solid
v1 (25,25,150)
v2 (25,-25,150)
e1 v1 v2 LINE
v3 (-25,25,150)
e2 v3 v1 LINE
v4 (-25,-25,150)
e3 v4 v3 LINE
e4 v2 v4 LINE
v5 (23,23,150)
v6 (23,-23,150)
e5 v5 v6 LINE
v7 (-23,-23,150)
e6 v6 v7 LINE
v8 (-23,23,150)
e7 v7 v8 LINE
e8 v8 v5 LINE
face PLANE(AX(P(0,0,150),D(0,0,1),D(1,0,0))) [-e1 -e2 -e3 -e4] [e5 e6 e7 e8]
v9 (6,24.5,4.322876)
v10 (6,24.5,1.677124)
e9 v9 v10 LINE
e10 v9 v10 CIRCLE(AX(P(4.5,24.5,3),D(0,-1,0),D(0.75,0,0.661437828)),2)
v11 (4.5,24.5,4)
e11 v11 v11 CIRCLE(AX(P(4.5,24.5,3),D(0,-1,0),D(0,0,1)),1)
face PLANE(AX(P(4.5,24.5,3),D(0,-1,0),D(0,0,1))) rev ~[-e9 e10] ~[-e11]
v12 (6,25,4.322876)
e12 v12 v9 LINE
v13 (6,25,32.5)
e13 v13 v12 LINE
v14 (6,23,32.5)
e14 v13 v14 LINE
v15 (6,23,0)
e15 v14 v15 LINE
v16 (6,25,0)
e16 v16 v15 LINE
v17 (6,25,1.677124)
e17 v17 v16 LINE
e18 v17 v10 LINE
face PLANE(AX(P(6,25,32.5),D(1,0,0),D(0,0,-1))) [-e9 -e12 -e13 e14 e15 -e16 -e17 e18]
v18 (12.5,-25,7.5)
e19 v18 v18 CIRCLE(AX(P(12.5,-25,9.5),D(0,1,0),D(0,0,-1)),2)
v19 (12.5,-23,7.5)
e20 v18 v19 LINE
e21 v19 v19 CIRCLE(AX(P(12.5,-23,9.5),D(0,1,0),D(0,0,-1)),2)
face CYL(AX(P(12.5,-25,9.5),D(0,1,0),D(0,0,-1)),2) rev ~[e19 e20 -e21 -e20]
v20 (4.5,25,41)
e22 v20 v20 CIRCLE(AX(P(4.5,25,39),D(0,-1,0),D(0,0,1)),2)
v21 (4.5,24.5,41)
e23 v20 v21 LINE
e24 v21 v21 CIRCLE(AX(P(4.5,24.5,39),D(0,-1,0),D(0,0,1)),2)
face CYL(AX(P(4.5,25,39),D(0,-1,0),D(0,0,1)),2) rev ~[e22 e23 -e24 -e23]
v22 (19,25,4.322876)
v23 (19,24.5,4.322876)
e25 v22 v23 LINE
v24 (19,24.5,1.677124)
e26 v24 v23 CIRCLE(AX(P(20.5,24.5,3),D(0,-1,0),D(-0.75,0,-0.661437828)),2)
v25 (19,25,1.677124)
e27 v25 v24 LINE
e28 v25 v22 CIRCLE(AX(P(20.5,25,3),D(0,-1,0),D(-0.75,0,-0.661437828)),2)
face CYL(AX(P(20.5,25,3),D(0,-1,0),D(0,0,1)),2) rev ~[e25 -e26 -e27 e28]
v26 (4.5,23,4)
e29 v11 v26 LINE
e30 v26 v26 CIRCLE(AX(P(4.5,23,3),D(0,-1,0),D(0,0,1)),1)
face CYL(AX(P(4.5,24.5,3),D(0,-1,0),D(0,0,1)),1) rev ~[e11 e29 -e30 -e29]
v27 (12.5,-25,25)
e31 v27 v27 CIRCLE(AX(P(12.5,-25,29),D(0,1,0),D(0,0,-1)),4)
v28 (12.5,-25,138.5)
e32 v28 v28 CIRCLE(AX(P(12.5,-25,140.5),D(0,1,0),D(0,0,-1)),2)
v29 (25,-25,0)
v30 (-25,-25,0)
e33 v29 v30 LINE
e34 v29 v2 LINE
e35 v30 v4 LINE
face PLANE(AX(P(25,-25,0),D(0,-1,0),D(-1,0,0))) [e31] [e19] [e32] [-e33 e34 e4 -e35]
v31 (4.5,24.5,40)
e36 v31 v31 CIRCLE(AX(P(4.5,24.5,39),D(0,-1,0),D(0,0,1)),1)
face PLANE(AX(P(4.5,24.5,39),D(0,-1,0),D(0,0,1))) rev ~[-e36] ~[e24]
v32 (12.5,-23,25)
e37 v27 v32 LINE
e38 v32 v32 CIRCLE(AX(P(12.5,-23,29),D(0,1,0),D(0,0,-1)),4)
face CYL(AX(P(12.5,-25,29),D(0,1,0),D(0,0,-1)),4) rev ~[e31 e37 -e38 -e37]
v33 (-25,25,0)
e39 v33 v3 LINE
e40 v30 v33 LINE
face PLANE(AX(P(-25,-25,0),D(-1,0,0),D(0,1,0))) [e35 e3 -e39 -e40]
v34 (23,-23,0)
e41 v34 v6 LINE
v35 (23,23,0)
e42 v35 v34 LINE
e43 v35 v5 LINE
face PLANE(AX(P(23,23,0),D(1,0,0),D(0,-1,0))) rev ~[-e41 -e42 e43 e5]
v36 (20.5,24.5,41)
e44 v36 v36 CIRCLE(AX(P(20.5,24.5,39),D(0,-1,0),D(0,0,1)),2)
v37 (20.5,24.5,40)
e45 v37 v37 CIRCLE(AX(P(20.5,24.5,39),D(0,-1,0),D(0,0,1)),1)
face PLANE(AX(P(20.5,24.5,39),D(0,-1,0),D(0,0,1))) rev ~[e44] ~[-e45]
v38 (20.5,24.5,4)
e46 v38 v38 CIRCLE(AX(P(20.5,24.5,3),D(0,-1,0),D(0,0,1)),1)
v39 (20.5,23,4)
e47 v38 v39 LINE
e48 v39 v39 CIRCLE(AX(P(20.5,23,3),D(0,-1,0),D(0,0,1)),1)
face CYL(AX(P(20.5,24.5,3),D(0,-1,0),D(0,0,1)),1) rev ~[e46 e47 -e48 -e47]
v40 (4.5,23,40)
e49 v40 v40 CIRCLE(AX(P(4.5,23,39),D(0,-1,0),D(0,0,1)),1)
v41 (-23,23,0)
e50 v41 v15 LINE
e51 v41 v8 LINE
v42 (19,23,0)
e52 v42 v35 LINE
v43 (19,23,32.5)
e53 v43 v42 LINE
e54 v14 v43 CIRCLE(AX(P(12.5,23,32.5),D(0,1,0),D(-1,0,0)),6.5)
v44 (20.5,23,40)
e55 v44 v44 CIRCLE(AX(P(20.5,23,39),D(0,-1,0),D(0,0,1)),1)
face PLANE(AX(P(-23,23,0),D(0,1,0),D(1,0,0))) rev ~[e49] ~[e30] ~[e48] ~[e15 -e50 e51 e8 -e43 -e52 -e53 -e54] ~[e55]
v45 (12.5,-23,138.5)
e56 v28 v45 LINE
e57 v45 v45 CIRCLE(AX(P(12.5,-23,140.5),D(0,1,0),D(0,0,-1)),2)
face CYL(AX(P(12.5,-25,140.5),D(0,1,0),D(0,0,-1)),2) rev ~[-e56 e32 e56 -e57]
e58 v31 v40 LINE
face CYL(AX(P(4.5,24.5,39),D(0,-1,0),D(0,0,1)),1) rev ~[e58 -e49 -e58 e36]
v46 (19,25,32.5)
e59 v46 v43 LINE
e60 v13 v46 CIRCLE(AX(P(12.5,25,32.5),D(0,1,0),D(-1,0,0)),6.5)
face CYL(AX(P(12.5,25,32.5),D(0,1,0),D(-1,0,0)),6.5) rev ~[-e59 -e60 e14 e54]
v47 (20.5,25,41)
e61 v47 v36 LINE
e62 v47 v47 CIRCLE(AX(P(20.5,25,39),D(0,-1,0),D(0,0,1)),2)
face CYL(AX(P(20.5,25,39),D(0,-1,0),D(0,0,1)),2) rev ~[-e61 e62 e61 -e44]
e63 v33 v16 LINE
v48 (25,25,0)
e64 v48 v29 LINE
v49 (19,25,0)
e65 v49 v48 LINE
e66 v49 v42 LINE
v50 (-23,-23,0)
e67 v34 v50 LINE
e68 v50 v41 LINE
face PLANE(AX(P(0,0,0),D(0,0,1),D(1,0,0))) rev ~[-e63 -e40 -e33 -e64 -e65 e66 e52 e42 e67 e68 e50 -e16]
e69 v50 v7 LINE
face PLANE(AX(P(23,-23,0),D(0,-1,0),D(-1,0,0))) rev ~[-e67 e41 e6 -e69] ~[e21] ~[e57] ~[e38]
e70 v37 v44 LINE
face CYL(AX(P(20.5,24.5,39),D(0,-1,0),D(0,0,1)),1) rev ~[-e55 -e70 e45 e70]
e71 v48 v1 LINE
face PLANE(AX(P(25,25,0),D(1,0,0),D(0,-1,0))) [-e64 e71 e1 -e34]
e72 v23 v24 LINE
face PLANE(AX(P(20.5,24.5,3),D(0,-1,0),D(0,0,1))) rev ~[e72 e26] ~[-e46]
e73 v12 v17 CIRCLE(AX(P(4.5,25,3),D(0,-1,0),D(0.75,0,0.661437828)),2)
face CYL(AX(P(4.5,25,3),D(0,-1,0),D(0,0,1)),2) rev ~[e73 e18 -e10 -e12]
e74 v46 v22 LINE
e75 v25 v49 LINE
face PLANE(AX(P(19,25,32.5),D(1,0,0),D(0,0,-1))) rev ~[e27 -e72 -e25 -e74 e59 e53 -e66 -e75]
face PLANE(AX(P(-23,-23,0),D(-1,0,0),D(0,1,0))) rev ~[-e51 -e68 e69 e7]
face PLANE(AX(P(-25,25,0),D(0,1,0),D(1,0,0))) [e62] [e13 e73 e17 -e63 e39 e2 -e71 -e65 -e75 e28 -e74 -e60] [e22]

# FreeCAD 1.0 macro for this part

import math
import FreeCAD as App
import Part
import Sketcher

doc = App.newDocument("Part")
body = doc.addObject("PartDesign::Body", "Body")

sketch1 = body.newObject("Sketcher::SketchObject", "Sketch")
sketch1.AttachmentSupport = (doc.getObject("XY_Plane"), [""])
sketch1.MapMode = "FlatFace"
sketch1.addGeometry(Part.LineSegment(App.Vector(25, 25, 0), App.Vector(-25, 25, 0)), False)
sketch1.addGeometry(Part.LineSegment(App.Vector(-25, 25, 0), App.Vector(-25, -25, 0)), False)
sketch1.addGeometry(Part.LineSegment(App.Vector(-25, -25, 0), App.Vector(25, -25, 0)), False)
sketch1.addGeometry(Part.LineSegment(App.Vector(25, -25, 0), App.Vector(25, 25, 0)), False)
sketch1.addGeometry(Part.LineSegment(App.Vector(-23, -23, 0), App.Vector(-23, 23, 0)), False)
sketch1.addGeometry(Part.LineSegment(App.Vector(-23, 23, 0), App.Vector(23, 23, 0)), False)
sketch1.addGeometry(Part.LineSegment(App.Vector(23, 23, 0), App.Vector(23, -23, 0)), False)
sketch1.addGeometry(Part.LineSegment(App.Vector(23, -23, 0), App.Vector(-23, -23, 0)), False)
sketch1.addConstraint(Sketcher.Constraint("Coincident", 0, 2, 1, 1))
sketch1.addConstraint(Sketcher.Constraint("Coincident", 1, 2, 2, 1))
sketch1.addConstraint(Sketcher.Constraint("Coincident", 2, 2, 3, 1))
sketch1.addConstraint(Sketcher.Constraint("Coincident", 3, 2, 0, 1))
sketch1.addConstraint(Sketcher.Constraint("Coincident", 4, 2, 5, 1))
sketch1.addConstraint(Sketcher.Constraint("Coincident", 5, 2, 6, 1))
sketch1.addConstraint(Sketcher.Constraint("Coincident", 6, 2, 7, 1))
sketch1.addConstraint(Sketcher.Constraint("Coincident", 7, 2, 4, 1))
sketch1.addConstraint(Sketcher.Constraint("Horizontal", 0))
sketch1.addConstraint(Sketcher.Constraint("Vertical", 1))
sketch1.addConstraint(Sketcher.Constraint("Horizontal", 2))
sketch1.addConstraint(Sketcher.Constraint("Vertical", 3))
sketch1.addConstraint(Sketcher.Constraint("Vertical", 4))
sketch1.addConstraint(Sketcher.Constraint("Horizontal", 5))
sketch1.addConstraint(Sketcher.Constraint("Vertical", 6))
sketch1.addConstraint(Sketcher.Constraint("Horizontal", 7))
sketch1.addConstraint(Sketcher.Constraint("Symmetric", 0, 2, 2, 2, -1, 1))
sketch1.addConstraint(Sketcher.Constraint("Symmetric", 4, 2, 6, 2, -1, 1))
sketch1.addConstraint(Sketcher.Constraint("Equal", 2, 1))
sketch1.addConstraint(Sketcher.Constraint("Equal", 7, 4))
sketch1.addConstraint(Sketcher.Constraint("DistanceX", 0, 2, 0, 1, 50.0))
sketch1.addConstraint(Sketcher.Constraint("DistanceX", 5, 1, 5, 2, 46.0))
pad1 = body.newObject("PartDesign::Pad", "Pad")
pad1.Profile = sketch1
pad1.Length = 150

sketch2 = body.newObject("Sketcher::SketchObject", "Sketch001")
sketch2.AttachmentSupport = (doc.getObject("XZ_Plane"), [""])
sketch2.MapMode = "FlatFace"
sketch2.AttachmentOffset = App.Placement(App.Vector(0, 0, -25), App.Rotation())
sketch2.addGeometry(Part.LineSegment(App.Vector(19, 0, 0), App.Vector(6, 0, 0)), False)
sketch2.addGeometry(Part.LineSegment(App.Vector(6, 0, 0), App.Vector(6, 32.5, 0)), False)
sketch2.addGeometry(Part.ArcOfCircle(Part.Circle(App.Vector(12.5, 32.5, 0), App.Vector(0, 0, 1), 6.5), math.radians(0), math.radians(180)), False)
sketch2.addGeometry(Part.LineSegment(App.Vector(19, 32.5, 0), App.Vector(19, 0, 0)), False)
sketch2.addConstraint(Sketcher.Constraint("Coincident", 0, 2, 1, 1))
sketch2.addConstraint(Sketcher.Constraint("Tangent", 1, 2, 2, 2))
sketch2.addConstraint(Sketcher.Constraint("Tangent", 2, 1, 3, 1))
sketch2.addConstraint(Sketcher.Constraint("Coincident", 3, 2, 0, 1))
sketch2.addConstraint(Sketcher.Constraint("Horizontal", 0))
sketch2.addConstraint(Sketcher.Constraint("Vertical", 1))
sketch2.addConstraint(Sketcher.Constraint("Vertical", 3))
sketch2.addConstraint(Sketcher.Constraint("PointOnObject", 0, 2, -1))
sketch2.addConstraint(Sketcher.Constraint("Radius", 2, 6.5))
sketch2.addConstraint(Sketcher.Constraint("DistanceY", 1, 1, 1, 2, 32.5))
sketch2.addConstraint(Sketcher.Constraint("DistanceX", -1, 1, 0, 2, 6.0))
pocket1 = body.newObject("PartDesign::Pocket", "Pocket")
pocket1.Profile = sketch2
pocket1.Length = 2
pocket1.Reversed = True

sketch3 = body.newObject("Sketcher::SketchObject", "Sketch002")
sketch3.AttachmentSupport = (doc.getObject("XZ_Plane"), [""])
sketch3.MapMode = "FlatFace"
sketch3.AttachmentOffset = App.Placement(App.Vector(0, 0, -25), App.Rotation())
sketch3.addGeometry(Part.Circle(App.Vector(4.5, 3, 0), App.Vector(0, 0, 1), 1), False)
sketch3.addGeometry(Part.Circle(App.Vector(20.5, 3, 0), App.Vector(0, 0, 1), 1), False)
sketch3.addGeometry(Part.Circle(App.Vector(20.5, 39, 0), App.Vector(0, 0, 1), 1), False)
sketch3.addGeometry(Part.Circle(App.Vector(4.5, 39, 0), App.Vector(0, 0, 1), 1), False)
sketch3.addConstraint(Sketcher.Constraint("Equal", 0, 1))
sketch3.addConstraint(Sketcher.Constraint("Equal", 1, 2))
sketch3.addConstraint(Sketcher.Constraint("Equal", 2, 3))
sketch3.addConstraint(Sketcher.Constraint("Horizontal", 0, 3, 1, 3))
sketch3.addConstraint(Sketcher.Constraint("Horizontal", 2, 3, 3, 3))
sketch3.addConstraint(Sketcher.Constraint("Vertical", 1, 3, 2, 3))
sketch3.addConstraint(Sketcher.Constraint("Vertical", 0, 3, 3, 3))
sketch3.addConstraint(Sketcher.Constraint("Diameter", 0, 2.0))
sketch3.addConstraint(Sketcher.Constraint("DistanceY", -1, 1, 0, 3, 3.0))
sketch3.addConstraint(Sketcher.Constraint("DistanceY", -1, 1, 2, 3, 39.0))
sketch3.addConstraint(Sketcher.Constraint("DistanceX", 0, 3, 1, 3, 16.0))
sketch3.addConstraint(Sketcher.Constraint("DistanceX", -1, 1, 0, 3, 4.5))
doc.recompute()
hole = body.newObject("PartDesign::Hole", "Hole")
hole.Profile = sketch3
hole.ThreadType = "None"
hole.Diameter = 2
hole.DepthType = "Dimension"
hole.Depth = 2
hole.DrillPoint = "Angled"
hole.DrillPointAngle = 118
hole.HoleCutType = "Counterbore"
hole.HoleCutDiameter = 4
hole.HoleCutDepth = 0.5
hole.Reversed = True

sketch4 = body.newObject("Sketcher::SketchObject", "Sketch003")
sketch4.AttachmentSupport = (doc.getObject("XZ_Plane"), [""])
sketch4.MapMode = "FlatFace"
sketch4.AttachmentOffset = App.Placement(App.Vector(0, 0, 25), App.Rotation())
sketch4.addGeometry(Part.Circle(App.Vector(12.5, 9.5, 0), App.Vector(0, 0, 1), 2), False)
sketch4.addConstraint(Sketcher.Constraint("Diameter", 0, 4.0))
sketch4.addConstraint(Sketcher.Constraint("DistanceX", -1, 1, 0, 3, 12.5))
sketch4.addConstraint(Sketcher.Constraint("DistanceY", -1, 1, 0, 3, 9.5))
doc.recompute()
hole2 = body.newObject("PartDesign::Hole", "Hole001")
hole2.Profile = sketch4
hole2.ThreadType = "None"
hole2.Diameter = 4
hole2.DepthType = "ThroughAll"

sketch5 = body.newObject("Sketcher::SketchObject", "Sketch004")
sketch5.AttachmentSupport = (doc.getObject("XZ_Plane"), [""])
sketch5.MapMode = "FlatFace"
sketch5.AttachmentOffset = App.Placement(App.Vector(0, 0, 25), App.Rotation())
sketch5.addGeometry(Part.Circle(App.Vector(12.5, 29, 0), App.Vector(0, 0, 1), 4), False)
sketch5.addConstraint(Sketcher.Constraint("Diameter", 0, 8.0))
sketch5.addConstraint(Sketcher.Constraint("DistanceY", -1, 1, 0, 3, 29.0))
sketch5.addConstraint(Sketcher.Constraint("DistanceX", -1, 1, 0, 3, 12.5))
doc.recompute()
hole3 = body.newObject("PartDesign::Hole", "Hole002")
hole3.Profile = sketch5
hole3.ThreadType = "None"
hole3.Diameter = 8
hole3.DepthType = "ThroughAll"

sketch6 = body.newObject("Sketcher::SketchObject", "Sketch005")
sketch6.AttachmentSupport = (doc.getObject("XZ_Plane"), [""])
sketch6.MapMode = "FlatFace"
sketch6.AttachmentOffset = App.Placement(App.Vector(0, 0, 25), App.Rotation())
sketch6.addGeometry(Part.Circle(App.Vector(12.5, 140.5, 0), App.Vector(0, 0, 1), 2), False)
sketch6.addConstraint(Sketcher.Constraint("Diameter", 0, 4.0))
sketch6.addConstraint(Sketcher.Constraint("DistanceX", -1, 1, 0, 3, 12.5))
sketch6.addConstraint(Sketcher.Constraint("DistanceY", -1, 1, 0, 3, 140.5))
doc.recompute()
hole4 = body.newObject("PartDesign::Hole", "Hole003")
hole4.Profile = sketch6
hole4.ThreadType = "None"
hole4.Diameter = 4
hole4.DepthType = "Dimension"
hole4.Depth = 2
hole4.DrillPoint = "Angled"
hole4.DrillPointAngle = 118

doc.recompute()
